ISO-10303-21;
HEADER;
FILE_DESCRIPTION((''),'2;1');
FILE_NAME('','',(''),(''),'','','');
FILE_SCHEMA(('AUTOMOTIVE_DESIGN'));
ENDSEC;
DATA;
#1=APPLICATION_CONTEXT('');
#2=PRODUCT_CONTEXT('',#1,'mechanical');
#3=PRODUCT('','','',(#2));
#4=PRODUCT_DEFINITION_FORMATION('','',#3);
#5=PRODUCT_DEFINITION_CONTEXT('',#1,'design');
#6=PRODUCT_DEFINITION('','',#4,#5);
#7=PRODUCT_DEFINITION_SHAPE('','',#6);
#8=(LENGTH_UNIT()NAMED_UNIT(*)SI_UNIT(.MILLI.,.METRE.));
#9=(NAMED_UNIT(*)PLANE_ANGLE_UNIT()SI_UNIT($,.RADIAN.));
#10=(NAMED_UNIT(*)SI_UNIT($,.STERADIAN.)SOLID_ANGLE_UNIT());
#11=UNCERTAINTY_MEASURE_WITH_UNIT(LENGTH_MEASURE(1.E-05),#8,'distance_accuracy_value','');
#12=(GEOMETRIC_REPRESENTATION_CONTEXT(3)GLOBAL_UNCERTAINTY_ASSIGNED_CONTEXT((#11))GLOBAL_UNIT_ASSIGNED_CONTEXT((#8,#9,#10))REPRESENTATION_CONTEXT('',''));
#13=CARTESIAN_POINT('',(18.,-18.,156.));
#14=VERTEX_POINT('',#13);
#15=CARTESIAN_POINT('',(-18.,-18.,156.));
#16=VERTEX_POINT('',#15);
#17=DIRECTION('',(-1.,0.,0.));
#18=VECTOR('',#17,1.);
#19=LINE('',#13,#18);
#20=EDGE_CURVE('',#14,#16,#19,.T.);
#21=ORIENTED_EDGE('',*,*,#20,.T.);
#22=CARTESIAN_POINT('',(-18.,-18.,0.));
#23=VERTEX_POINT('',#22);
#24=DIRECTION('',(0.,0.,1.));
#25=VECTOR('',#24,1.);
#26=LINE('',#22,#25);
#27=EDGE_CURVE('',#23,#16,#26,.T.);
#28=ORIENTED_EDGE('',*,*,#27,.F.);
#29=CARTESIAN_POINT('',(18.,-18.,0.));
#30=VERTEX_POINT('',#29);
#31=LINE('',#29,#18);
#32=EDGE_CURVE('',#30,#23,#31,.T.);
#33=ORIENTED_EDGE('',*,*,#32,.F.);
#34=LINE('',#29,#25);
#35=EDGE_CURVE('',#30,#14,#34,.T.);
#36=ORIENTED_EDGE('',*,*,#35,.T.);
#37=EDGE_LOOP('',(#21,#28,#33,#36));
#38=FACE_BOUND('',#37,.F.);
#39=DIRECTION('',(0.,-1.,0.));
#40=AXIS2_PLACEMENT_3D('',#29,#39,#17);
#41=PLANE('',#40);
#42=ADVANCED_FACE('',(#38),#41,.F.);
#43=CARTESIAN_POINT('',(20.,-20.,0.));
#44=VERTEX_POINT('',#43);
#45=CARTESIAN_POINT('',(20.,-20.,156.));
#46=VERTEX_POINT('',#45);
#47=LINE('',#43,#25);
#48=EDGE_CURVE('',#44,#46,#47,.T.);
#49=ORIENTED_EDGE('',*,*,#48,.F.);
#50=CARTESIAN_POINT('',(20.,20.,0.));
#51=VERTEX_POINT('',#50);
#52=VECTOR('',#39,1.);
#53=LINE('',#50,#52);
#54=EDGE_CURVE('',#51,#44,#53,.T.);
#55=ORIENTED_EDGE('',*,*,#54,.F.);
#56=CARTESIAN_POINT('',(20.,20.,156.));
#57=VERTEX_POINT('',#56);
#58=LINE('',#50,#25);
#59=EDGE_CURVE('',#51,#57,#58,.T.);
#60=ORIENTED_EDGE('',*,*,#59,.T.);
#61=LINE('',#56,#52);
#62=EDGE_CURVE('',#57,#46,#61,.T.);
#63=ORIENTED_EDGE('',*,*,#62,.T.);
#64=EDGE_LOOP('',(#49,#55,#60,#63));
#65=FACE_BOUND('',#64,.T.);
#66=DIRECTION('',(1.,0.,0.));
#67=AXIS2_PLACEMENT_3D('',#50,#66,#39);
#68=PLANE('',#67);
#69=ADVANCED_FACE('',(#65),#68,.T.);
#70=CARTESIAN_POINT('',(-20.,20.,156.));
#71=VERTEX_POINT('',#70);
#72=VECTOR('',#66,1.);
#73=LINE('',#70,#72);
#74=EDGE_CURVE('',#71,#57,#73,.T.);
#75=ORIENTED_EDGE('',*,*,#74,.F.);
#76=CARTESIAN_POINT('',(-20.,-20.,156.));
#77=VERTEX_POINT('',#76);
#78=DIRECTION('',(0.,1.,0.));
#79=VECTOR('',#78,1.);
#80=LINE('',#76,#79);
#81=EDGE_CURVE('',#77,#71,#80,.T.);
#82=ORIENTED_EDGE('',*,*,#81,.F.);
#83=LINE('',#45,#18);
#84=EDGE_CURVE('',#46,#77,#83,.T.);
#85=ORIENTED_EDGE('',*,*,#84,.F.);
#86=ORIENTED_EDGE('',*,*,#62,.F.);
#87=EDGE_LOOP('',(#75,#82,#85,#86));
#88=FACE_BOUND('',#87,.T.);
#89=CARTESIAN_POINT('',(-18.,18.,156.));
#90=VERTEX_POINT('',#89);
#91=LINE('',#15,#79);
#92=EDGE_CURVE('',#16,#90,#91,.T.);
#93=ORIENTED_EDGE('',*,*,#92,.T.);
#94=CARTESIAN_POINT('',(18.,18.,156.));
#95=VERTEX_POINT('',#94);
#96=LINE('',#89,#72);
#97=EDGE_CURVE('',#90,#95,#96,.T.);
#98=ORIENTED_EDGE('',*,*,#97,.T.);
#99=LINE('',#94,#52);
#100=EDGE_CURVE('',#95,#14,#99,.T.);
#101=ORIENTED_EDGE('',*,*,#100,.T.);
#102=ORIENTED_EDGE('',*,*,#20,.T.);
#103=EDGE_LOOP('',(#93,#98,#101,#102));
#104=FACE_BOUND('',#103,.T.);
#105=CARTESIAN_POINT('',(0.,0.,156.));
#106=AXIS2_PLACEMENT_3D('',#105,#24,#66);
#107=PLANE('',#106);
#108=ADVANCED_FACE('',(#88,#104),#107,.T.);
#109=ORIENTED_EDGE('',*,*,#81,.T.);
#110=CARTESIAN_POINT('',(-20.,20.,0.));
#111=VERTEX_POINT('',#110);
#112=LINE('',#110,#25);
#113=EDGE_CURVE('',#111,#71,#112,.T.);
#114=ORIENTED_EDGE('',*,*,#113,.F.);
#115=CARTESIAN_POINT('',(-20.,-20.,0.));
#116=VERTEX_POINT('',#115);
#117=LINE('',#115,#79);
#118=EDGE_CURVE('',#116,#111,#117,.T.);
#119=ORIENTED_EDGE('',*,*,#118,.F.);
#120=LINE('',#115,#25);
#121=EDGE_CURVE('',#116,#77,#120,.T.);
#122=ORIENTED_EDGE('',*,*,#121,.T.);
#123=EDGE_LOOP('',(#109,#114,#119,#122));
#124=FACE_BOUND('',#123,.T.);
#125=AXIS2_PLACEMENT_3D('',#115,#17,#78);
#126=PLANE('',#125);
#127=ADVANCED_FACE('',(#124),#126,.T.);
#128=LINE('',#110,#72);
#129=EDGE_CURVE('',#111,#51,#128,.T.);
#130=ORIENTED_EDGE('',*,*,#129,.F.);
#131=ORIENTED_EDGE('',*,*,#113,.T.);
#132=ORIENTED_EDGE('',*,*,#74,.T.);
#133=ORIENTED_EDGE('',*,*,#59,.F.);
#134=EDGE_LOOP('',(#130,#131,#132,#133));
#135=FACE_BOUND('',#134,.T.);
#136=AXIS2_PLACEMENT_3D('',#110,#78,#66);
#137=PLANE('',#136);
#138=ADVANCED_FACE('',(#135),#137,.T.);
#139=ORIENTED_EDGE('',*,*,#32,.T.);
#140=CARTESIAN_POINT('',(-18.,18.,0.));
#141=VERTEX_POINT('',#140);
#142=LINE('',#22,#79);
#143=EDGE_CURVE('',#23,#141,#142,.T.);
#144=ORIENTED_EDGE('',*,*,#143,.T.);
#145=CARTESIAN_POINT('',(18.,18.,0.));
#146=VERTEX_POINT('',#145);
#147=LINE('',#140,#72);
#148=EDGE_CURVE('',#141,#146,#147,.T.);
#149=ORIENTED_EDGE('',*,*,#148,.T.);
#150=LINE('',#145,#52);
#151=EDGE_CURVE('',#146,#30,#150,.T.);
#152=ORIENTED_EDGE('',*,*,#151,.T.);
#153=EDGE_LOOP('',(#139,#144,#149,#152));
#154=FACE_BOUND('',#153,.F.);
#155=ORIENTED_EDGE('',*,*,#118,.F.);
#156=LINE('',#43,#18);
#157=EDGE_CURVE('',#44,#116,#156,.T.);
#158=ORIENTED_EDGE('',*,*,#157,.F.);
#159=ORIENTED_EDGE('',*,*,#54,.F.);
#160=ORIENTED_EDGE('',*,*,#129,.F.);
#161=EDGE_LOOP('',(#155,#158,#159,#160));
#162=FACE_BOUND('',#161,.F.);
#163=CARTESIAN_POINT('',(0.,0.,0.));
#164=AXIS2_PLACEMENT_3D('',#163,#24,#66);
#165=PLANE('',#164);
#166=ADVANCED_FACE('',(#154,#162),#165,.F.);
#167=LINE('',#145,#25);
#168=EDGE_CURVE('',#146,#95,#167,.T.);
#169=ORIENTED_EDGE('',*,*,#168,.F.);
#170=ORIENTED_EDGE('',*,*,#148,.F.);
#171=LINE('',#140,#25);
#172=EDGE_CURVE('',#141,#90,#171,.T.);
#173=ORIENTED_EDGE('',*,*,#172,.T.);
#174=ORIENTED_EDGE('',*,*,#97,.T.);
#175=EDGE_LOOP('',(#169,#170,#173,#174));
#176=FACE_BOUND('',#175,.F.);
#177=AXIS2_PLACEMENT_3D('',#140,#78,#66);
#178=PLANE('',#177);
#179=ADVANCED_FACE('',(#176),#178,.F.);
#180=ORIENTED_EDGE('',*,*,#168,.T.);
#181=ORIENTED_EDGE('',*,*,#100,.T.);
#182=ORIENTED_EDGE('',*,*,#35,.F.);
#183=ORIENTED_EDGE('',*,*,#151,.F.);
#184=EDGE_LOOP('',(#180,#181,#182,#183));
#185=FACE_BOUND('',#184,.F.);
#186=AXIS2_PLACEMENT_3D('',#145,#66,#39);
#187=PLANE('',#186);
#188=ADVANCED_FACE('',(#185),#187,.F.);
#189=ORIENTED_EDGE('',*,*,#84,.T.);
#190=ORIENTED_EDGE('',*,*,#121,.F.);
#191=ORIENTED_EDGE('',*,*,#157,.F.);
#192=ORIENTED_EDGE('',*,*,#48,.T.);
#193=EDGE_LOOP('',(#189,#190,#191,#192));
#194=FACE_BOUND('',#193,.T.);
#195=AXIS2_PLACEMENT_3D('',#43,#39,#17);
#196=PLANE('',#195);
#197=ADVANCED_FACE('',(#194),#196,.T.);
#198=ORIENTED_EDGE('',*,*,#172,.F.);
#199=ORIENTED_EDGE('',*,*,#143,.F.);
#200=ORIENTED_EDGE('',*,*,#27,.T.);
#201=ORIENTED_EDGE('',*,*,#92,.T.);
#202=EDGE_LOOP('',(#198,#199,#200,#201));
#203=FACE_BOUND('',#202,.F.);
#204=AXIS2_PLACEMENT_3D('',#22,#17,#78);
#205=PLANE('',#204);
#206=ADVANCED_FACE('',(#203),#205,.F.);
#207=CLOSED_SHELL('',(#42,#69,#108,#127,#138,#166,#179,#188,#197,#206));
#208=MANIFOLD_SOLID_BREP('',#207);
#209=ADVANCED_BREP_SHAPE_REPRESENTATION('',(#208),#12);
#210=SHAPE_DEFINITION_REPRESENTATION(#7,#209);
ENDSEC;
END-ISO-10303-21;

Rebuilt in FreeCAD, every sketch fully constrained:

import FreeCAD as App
import Part
import Sketcher
Q = App.Units.Quantity


def add_polygon(sketch, points):
    """Adds a closed chain of lines whose ends are joined by coincident constraints."""
    first, n = sketch.GeometryCount, len(points)
    for a, b in zip(points, points[1:] + points[:1]):
        sketch.addGeometry(Part.LineSegment(App.Vector(*a, 0), App.Vector(*b, 0)), False)
    for i in range(n):
        sketch.addConstraint(Sketcher.Constraint("Coincident", first + i, 2, first + (i + 1) % n, 1))

doc = App.newDocument("Part")
params = doc.addObject("Spreadsheet::Sheet", "Params")
for row, (alias, value) in enumerate([
    ("sketch1_width", "40 mm"),
    ("pad1_length", "156 mm"),
], start=1):
    params.set(f"A{row}", alias)
    params.set(f"B{row}", "=" + value)
    params.setAlias(f"B{row}", alias)

body = doc.addObject("PartDesign::Body", "Body")

# Sketch on XY plane
sketch1 = body.newObject("Sketcher::SketchObject", "Sketch")
sketch1.AttachmentSupport = (doc.getObject("XY_Plane"), [""])
sketch1.MapMode = "FlatFace"
add_polygon(sketch1, [(20, 20), (-20, 20), (-20, -20), (20, -20)])  # lines 0-3
add_polygon(sketch1, [(-18, -18), (-18, 18), (18, 18), (18, -18)])  # lines 4-7
sketch1.addConstraint(Sketcher.Constraint("Horizontal", 0))
sketch1.addConstraint(Sketcher.Constraint("Vertical", 1))
sketch1.addConstraint(Sketcher.Constraint("Horizontal", 2))
sketch1.addConstraint(Sketcher.Constraint("Vertical", 3))
sketch1.addConstraint(Sketcher.Constraint("Vertical", 4))
sketch1.addConstraint(Sketcher.Constraint("Horizontal", 5))
sketch1.addConstraint(Sketcher.Constraint("Vertical", 6))
sketch1.addConstraint(Sketcher.Constraint("Horizontal", 7))
sketch1.addConstraint(Sketcher.Constraint("Symmetric", 0, 2, 2, 2, -1, 1))
sketch1.addConstraint(Sketcher.Constraint("Symmetric", 4, 2, 6, 2, -1, 1))
sketch1.addConstraint(Sketcher.Constraint("Equal", 2, 1))
sketch1.addConstraint(Sketcher.Constraint("Equal", 7, 4))
sketch1.addConstraint(Sketcher.Constraint("DistanceX", 0, 2, 0, 1, Q("40 mm")))
sketch1.addConstraint(Sketcher.Constraint("DistanceX", 0, 2, 4, 2, Q("2 mm")))
sketch1.setExpression("Constraints[20]", "Params.sketch1_width")
pad1 = body.newObject("PartDesign::Pad", "Pad")
pad1.Profile = sketch1
pad1.setExpression("Length", "Params.pad1_length")

doc.recompute()
